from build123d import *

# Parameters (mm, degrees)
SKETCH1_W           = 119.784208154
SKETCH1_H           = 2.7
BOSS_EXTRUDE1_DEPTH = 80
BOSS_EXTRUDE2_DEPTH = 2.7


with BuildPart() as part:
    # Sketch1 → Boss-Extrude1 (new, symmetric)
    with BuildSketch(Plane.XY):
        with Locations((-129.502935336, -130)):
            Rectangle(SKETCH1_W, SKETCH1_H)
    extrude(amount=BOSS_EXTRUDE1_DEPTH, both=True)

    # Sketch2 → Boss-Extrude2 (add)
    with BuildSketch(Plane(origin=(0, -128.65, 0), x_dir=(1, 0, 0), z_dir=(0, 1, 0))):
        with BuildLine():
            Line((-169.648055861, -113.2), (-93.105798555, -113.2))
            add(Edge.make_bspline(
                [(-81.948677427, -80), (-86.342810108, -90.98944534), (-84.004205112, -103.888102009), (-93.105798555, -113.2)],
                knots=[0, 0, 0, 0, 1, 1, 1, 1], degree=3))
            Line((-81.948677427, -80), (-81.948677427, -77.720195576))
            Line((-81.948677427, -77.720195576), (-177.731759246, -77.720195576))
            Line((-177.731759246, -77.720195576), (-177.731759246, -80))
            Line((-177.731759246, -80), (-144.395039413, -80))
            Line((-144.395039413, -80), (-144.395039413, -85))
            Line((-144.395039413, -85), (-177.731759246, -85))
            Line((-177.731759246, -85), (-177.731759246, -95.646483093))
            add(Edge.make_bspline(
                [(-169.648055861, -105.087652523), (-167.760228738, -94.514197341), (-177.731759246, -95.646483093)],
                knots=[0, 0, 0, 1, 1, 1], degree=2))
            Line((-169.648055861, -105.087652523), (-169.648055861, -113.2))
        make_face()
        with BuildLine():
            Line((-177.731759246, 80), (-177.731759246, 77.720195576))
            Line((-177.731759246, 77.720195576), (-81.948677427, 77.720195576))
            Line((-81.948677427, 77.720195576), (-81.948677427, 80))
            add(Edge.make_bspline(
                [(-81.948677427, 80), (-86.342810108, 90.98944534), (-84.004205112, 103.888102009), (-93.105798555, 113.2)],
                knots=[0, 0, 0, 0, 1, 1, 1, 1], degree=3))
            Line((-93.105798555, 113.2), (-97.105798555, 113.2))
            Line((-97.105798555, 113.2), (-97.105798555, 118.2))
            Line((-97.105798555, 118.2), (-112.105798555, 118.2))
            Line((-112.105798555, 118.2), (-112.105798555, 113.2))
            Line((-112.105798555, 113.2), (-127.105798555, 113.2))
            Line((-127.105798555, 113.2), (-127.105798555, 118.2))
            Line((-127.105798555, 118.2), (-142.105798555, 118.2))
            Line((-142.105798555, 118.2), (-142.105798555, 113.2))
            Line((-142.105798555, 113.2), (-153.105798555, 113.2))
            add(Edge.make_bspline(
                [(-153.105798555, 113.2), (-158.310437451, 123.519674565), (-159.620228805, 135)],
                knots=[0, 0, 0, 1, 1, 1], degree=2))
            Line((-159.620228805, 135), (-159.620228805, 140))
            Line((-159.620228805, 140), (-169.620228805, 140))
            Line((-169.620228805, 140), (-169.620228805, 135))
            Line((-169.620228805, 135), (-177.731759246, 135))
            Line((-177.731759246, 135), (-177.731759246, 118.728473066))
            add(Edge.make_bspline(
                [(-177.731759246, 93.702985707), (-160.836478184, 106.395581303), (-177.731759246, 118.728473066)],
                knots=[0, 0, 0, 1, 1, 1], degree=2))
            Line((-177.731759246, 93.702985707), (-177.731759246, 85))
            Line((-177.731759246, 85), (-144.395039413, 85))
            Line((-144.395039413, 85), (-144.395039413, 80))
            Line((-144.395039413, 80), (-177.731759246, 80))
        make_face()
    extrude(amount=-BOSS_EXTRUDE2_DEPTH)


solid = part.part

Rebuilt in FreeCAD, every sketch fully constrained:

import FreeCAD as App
import Part
import Sketcher

V = App.Vector

doc = App.newDocument("Part")
body = doc.addObject("PartDesign::Body", "Body")

# Sketch on XY plane
sketch1 = body.newObject("Sketcher::SketchObject", "Sketch")
sketch1.AttachmentSupport = (doc.getObject("XY_Plane"), [""])
sketch1.MapMode = "FlatFace"
sketch1.addGeometry(Part.LineSegment(V(-189.4, -128.7, 0), V(-189.4, -131.3, 0)), False)
sketch1.addGeometry(Part.LineSegment(V(-189.4, -131.3, 0), V(-69.6, -131.3, 0)), False)
sketch1.addGeometry(Part.LineSegment(V(-69.6, -131.3, 0), V(-69.6, -128.7, 0)), False)
sketch1.addGeometry(Part.LineSegment(V(-69.6, -128.7, 0), V(-189.4, -128.7, 0)), False)
sketch1.addConstraint(Sketcher.Constraint("Coincident", 0, 2, 1, 1))
sketch1.addConstraint(Sketcher.Constraint("Coincident", 1, 2, 2, 1))
sketch1.addConstraint(Sketcher.Constraint("Coincident", 2, 2, 3, 1))
sketch1.addConstraint(Sketcher.Constraint("Coincident", 3, 2, 0, 1))
sketch1.addConstraint(Sketcher.Constraint("Vertical", 0))
sketch1.addConstraint(Sketcher.Constraint("Horizontal", 1))
sketch1.addConstraint(Sketcher.Constraint("Vertical", 2))
sketch1.addConstraint(Sketcher.Constraint("Horizontal", 3))
sketch1.addConstraint(Sketcher.Constraint("DistanceY", 0, 2, 0, 1, 2.7))
sketch1.addConstraint(Sketcher.Constraint("DistanceY", 0, 2, -1, 1, 131.35))
sketch1.addConstraint(Sketcher.Constraint("DistanceX", 1, 1, 1, 2, 119.784208))
sketch1.addConstraint(Sketcher.Constraint("DistanceX", 0, 2, -1, 1, 189.395039))
pad1 = body.newObject("PartDesign::Pad", "Pad")
pad1.Profile = sketch1
pad1.Length = 160
pad1.Midplane = True

# Sketch on XZ plane
sketch2 = body.newObject("Sketcher::SketchObject", "Sketch001")
sketch2.AttachmentSupport = (doc.getObject("XZ_Plane"), [""])
sketch2.MapMode = "FlatFace"
sketch2.AttachmentOffset = App.Placement(V(0, 0, 128.65), App.Rotation())
sketch2.addGeometry(Part.LineSegment(V(-169.648056, 113.2, 0), V(-93.105799, 113.2, 0)), False)
sketch2.addGeometry(Part.BSplineCurve([V(-81.948677, 80, 0), V(-86.34281, 90.989445, 0), V(-84.004205, 103.888102, 0), V(-93.105799, 113.2, 0)], [4, 4], [0, 1], False, 3, [1, 1, 1, 1], False), False)
sketch2.addGeometry(Part.LineSegment(V(-81.948677, 80, 0), V(-81.948677, 77.720196, 0)), False)
sketch2.addGeometry(Part.LineSegment(V(-81.948677, 77.720196, 0), V(-177.731759, 77.720196, 0)), False)
sketch2.addGeometry(Part.LineSegment(V(-177.731759, 77.720196, 0), V(-177.731759, 80, 0)), False)
sketch2.addGeometry(Part.LineSegment(V(-177.731759, 80, 0), V(-144.395039, 80, 0)), False)
sketch2.addGeometry(Part.LineSegment(V(-144.395039, 80, 0), V(-144.395039, 85, 0)), False)
sketch2.addGeometry(Part.LineSegment(V(-144.395039, 85, 0), V(-177.731759, 85, 0)), False)
sketch2.addGeometry(Part.LineSegment(V(-177.731759, 85, 0), V(-177.731759, 95.646483, 0)), False)
sketch2.addGeometry(Part.BSplineCurve([V(-169.648056, 105.087653, 0), V(-167.760229, 94.514197, 0), V(-177.731759, 95.646483, 0)], [3, 3], [0, 1], False, 2, [1, 1, 1], False), False)
sketch2.addGeometry(Part.LineSegment(V(-169.648056, 105.087653, 0), V(-169.648056, 113.2, 0)), False)
sketch2.addGeometry(Part.LineSegment(V(-177.731759, -80, 0), V(-177.731759, -77.720196, 0)), False)
sketch2.addGeometry(Part.LineSegment(V(-177.731759, -77.720196, 0), V(-81.948677, -77.720196, 0)), False)
sketch2.addGeometry(Part.LineSegment(V(-81.948677, -77.720196, 0), V(-81.948677, -80, 0)), False)
sketch2.addGeometry(Part.BSplineCurve([V(-81.948677, -80, 0), V(-86.34281, -90.989445, 0), V(-84.004205, -103.888102, 0), V(-93.105799, -113.2, 0)], [4, 4], [0, 1], False, 3, [1, 1, 1, 1], False), False)
sketch2.addGeometry(Part.LineSegment(V(-93.105799, -113.2, 0), V(-97.105799, -113.2, 0)), False)
sketch2.addGeometry(Part.LineSegment(V(-97.105799, -113.2, 0), V(-97.105799, -118.2, 0)), False)
sketch2.addGeometry(Part.LineSegment(V(-97.105799, -118.2, 0), V(-112.105799, -118.2, 0)), False)
sketch2.addGeometry(Part.LineSegment(V(-112.105799, -118.2, 0), V(-112.105799, -113.2, 0)), False)
sketch2.addGeometry(Part.LineSegment(V(-112.105799, -113.2, 0), V(-127.105799, -113.2, 0)), False)
sketch2.addGeometry(Part.LineSegment(V(-127.105799, -113.2, 0), V(-127.105799, -118.2, 0)), False)
sketch2.addGeometry(Part.LineSegment(V(-127.105799, -118.2, 0), V(-142.105799, -118.2, 0)), False)
sketch2.addGeometry(Part.LineSegment(V(-142.105799, -118.2, 0), V(-142.105799, -113.2, 0)), False)
sketch2.addGeometry(Part.LineSegment(V(-142.105799, -113.2, 0), V(-153.105799, -113.2, 0)), False)
sketch2.addGeometry(Part.BSplineCurve([V(-153.105799, -113.2, 0), V(-158.310437, -123.519675, 0), V(-159.620229, -135, 0)], [3, 3], [0, 1], False, 2, [1, 1, 1], False), False)
sketch2.addGeometry(Part.LineSegment(V(-159.620229, -135, 0), V(-159.620229, -140, 0)), False)
sketch2.addGeometry(Part.LineSegment(V(-159.620229, -140, 0), V(-169.620229, -140, 0)), False)
sketch2.addGeometry(Part.LineSegment(V(-169.620229, -140, 0), V(-169.620229, -135, 0)), False)
sketch2.addGeometry(Part.LineSegment(V(-169.620229, -135, 0), V(-177.731759, -135, 0)), False)
sketch2.addGeometry(Part.LineSegment(V(-177.731759, -135, 0), V(-177.731759, -118.728473, 0)), False)
sketch2.addGeometry(Part.BSplineCurve([V(-177.731759, -93.702986, 0), V(-160.836478, -106.395581, 0), V(-177.731759, -118.728473, 0)], [3, 3], [0, 1], False, 2, [1, 1, 1], False), False)
sketch2.addGeometry(Part.LineSegment(V(-177.731759, -93.702986, 0), V(-177.731759, -85, 0)), False)
sketch2.addGeometry(Part.LineSegment(V(-177.731759, -85, 0), V(-144.395039, -85, 0)), False)
sketch2.addGeometry(Part.LineSegment(V(-144.395039, -85, 0), V(-144.395039, -80, 0)), False)
sketch2.addGeometry(Part.LineSegment(V(-144.395039, -80, 0), V(-177.731759, -80, 0)), False)
sketch2.addConstraint(Sketcher.Constraint("Block", 1))
sketch2.addConstraint(Sketcher.Constraint("Block", 9))
sketch2.addConstraint(Sketcher.Constraint("Block", 14))
sketch2.addConstraint(Sketcher.Constraint("Block", 24))
sketch2.addConstraint(Sketcher.Constraint("Block", 30))
sketch2.addConstraint(Sketcher.Constraint("Coincident", 0, 2, 1, 2))
sketch2.addConstraint(Sketcher.Constraint("Coincident", 1, 1, 2, 1))
sketch2.addConstraint(Sketcher.Constraint("Coincident", 2, 2, 3, 1))
sketch2.addConstraint(Sketcher.Constraint("Coincident", 3, 2, 4, 1))
sketch2.addConstraint(Sketcher.Constraint("Coincident", 4, 2, 5, 1))
sketch2.addConstraint(Sketcher.Constraint("Coincident", 5, 2, 6, 1))
sketch2.addConstraint(Sketcher.Constraint("Coincident", 6, 2, 7, 1))
sketch2.addConstraint(Sketcher.Constraint("Coincident", 7, 2, 8, 1))
sketch2.addConstraint(Sketcher.Constraint("Coincident", 8, 2, 9, 2))
sketch2.addConstraint(Sketcher.Constraint("Coincident", 9, 1, 10, 1))
sketch2.addConstraint(Sketcher.Constraint("Coincident", 10, 2, 0, 1))
sketch2.addConstraint(Sketcher.Constraint("Coincident", 11, 2, 12, 1))
sketch2.addConstraint(Sketcher.Constraint("Coincident", 12, 2, 13, 1))
sketch2.addConstraint(Sketcher.Constraint("Coincident", 13, 2, 14, 1))
sketch2.addConstraint(Sketcher.Constraint("Coincident", 14, 2, 15, 1))
sketch2.addConstraint(Sketcher.Constraint("Coincident", 15, 2, 16, 1))
sketch2.addConstraint(Sketcher.Constraint("Coincident", 16, 2, 17, 1))
sketch2.addConstraint(Sketcher.Constraint("Coincident", 17, 2, 18, 1))
sketch2.addConstraint(Sketcher.Constraint("Coincident", 18, 2, 19, 1))
sketch2.addConstraint(Sketcher.Constraint("Coincident", 19, 2, 20, 1))
sketch2.addConstraint(Sketcher.Constraint("Coincident", 20, 2, 21, 1))
sketch2.addConstraint(Sketcher.Constraint("Coincident", 21, 2, 22, 1))
sketch2.addConstraint(Sketcher.Constraint("Coincident", 22, 2, 23, 1))
sketch2.addConstraint(Sketcher.Constraint("Coincident", 23, 2, 24, 1))
sketch2.addConstraint(Sketcher.Constraint("Coincident", 24, 2, 25, 1))
sketch2.addConstraint(Sketcher.Constraint("Coincident", 25, 2, 26, 1))
sketch2.addConstraint(Sketcher.Constraint("Coincident", 26, 2, 27, 1))
sketch2.addConstraint(Sketcher.Constraint("Coincident", 27, 2, 28, 1))
sketch2.addConstraint(Sketcher.Constraint("Coincident", 28, 2, 29, 1))
sketch2.addConstraint(Sketcher.Constraint("Coincident", 29, 2, 30, 2))
sketch2.addConstraint(Sketcher.Constraint("Coincident", 30, 1, 31, 1))
sketch2.addConstraint(Sketcher.Constraint("Coincident", 31, 2, 32, 1))
sketch2.addConstraint(Sketcher.Constraint("Coincident", 32, 2, 33, 1))
sketch2.addConstraint(Sketcher.Constraint("Coincident", 33, 2, 34, 1))
sketch2.addConstraint(Sketcher.Constraint("Coincident", 34, 2, 11, 1))
sketch2.addConstraint(Sketcher.Constraint("Horizontal", 0))
sketch2.addConstraint(Sketcher.Constraint("Vertical", 2))
sketch2.addConstraint(Sketcher.Constraint("Horizontal", 3))
sketch2.addConstraint(Sketcher.Constraint("Vertical", 4))
sketch2.addConstraint(Sketcher.Constraint("Horizontal", 5))
sketch2.addConstraint(Sketcher.Constraint("Vertical", 6))
sketch2.addConstraint(Sketcher.Constraint("Horizontal", 7))
sketch2.addConstraint(Sketcher.Constraint("Vertical", 8))
sketch2.addConstraint(Sketcher.Constraint("Vertical", 10))
sketch2.addConstraint(Sketcher.Constraint("Vertical", 11))
sketch2.addConstraint(Sketcher.Constraint("Horizontal", 12))
sketch2.addConstraint(Sketcher.Constraint("Vertical", 13))
sketch2.addConstraint(Sketcher.Constraint("Horizontal", 15))
sketch2.addConstraint(Sketcher.Constraint("Vertical", 16))
sketch2.addConstraint(Sketcher.Constraint("Horizontal", 17))
sketch2.addConstraint(Sketcher.Constraint("Vertical", 18))
sketch2.addConstraint(Sketcher.Constraint("Horizontal", 19))
sketch2.addConstraint(Sketcher.Constraint("Vertical", 20))
sketch2.addConstraint(Sketcher.Constraint("Horizontal", 21))
sketch2.addConstraint(Sketcher.Constraint("Vertical", 22))
sketch2.addConstraint(Sketcher.Constraint("Horizontal", 23))
sketch2.addConstraint(Sketcher.Constraint("Vertical", 25))
sketch2.addConstraint(Sketcher.Constraint("Horizontal", 26))
sketch2.addConstraint(Sketcher.Constraint("Vertical", 27))
sketch2.addConstraint(Sketcher.Constraint("Horizontal", 28))
sketch2.addConstraint(Sketcher.Constraint("Vertical", 29))
sketch2.addConstraint(Sketcher.Constraint("Vertical", 31))
sketch2.addConstraint(Sketcher.Constraint("Horizontal", 32))
sketch2.addConstraint(Sketcher.Constraint("Vertical", 33))
sketch2.addConstraint(Sketcher.Constraint("Horizontal", 34))
sketch2.addConstraint(Sketcher.Constraint("DistanceX", 15, 2, 15, 1, 4.0))
sketch2.addConstraint(Sketcher.Constraint("DistanceX", 17, 2, 17, 1, 15.0))
sketch2.addConstraint(Sketcher.Constraint("DistanceX", 19, 2, 19, 1, 15.0))
sketch2.addConstraint(Sketcher.Constraint("DistanceX", 21, 2, 21, 1, 15.0))
sketch2.addConstraint(Sketcher.Constraint("DistanceX", 26, 2, 26, 1, 10.0))
sketch2.addConstraint(Sketcher.Constraint("DistanceY", 6, 1, 6, 2, 5.0))
sketch2.addConstraint(Sketcher.Constraint("DistanceY", 16, 2, 16, 1, 5.0))
sketch2.addConstraint(Sketcher.Constraint("DistanceY", 18, 1, 18, 2, 5.0))
sketch2.addConstraint(Sketcher.Constraint("DistanceY", 20, 2, 20, 1, 5.0))
sketch2.addConstraint(Sketcher.Constraint("DistanceY", 25, 2, 25, 1, 5.0))
sketch2.addConstraint(Sketcher.Constraint("DistanceY", 27, 1, 27, 2, 5.0))
sketch2.addConstraint(Sketcher.Constraint("DistanceY", 33, 1, 33, 2, 5.0))
sketch2.addConstraint(Sketcher.Constraint("DistanceY", -1, 1, 4, 2, 80.0))
sketch2.addConstraint(Sketcher.Constraint("DistanceY", 31, 2, -1, 1, 85.0))
sketch2.addConstraint(Sketcher.Constraint("DistanceX", 3, 2, 3, 1, 95.783082))
sketch2.addConstraint(Sketcher.Constraint("DistanceX", 5, 1, 5, 2, 33.33672))
sketch2.addConstraint(Sketcher.Constraint("DistanceX", 12, 1, 12, 2, 95.783082))
sketch2.addConstraint(Sketcher.Constraint("DistanceX", 32, 1, 32, 2, 33.33672))
sketch2.addConstraint(Sketcher.Constraint("DistanceY", 2, 2, 2, 1, 2.279804))
sketch2.addConstraint(Sketcher.Constraint("DistanceY", 11, 1, 11, 2, 2.279804))
pad2 = body.newObject("PartDesign::Pad", "Pad001")
pad2.Profile = sketch2
pad2.Length = 2.7

doc.recompute()
